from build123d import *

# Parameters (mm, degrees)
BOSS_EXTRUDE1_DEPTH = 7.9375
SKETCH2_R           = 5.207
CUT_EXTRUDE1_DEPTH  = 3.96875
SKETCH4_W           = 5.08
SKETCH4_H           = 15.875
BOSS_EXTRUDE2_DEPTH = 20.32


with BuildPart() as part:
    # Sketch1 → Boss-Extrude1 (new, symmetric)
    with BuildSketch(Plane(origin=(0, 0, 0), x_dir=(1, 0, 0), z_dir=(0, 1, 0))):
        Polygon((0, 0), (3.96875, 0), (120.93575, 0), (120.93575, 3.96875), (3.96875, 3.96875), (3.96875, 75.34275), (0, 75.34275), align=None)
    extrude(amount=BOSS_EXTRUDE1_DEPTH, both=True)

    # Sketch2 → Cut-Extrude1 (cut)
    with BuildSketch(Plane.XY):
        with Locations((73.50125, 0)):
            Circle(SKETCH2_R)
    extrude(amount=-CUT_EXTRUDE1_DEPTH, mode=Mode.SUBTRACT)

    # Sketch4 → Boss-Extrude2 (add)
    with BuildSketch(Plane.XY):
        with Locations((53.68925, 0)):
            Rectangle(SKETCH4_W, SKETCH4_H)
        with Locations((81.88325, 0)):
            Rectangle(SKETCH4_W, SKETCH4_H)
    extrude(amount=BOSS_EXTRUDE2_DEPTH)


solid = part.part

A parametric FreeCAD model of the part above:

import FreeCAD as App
import Part
import Sketcher

V = App.Vector
Q = App.Units.Quantity


def add_polygon(sketch, points):
    """Adds a closed chain of lines whose ends are joined by coincident constraints."""
    first, n = sketch.GeometryCount, len(points)
    for a, b in zip(points, points[1:] + points[:1]):
        sketch.addGeometry(Part.LineSegment(App.Vector(*a, 0), App.Vector(*b, 0)), False)
    for i in range(n):
        sketch.addConstraint(Sketcher.Constraint("Coincident", first + i, 2, first + (i + 1) % n, 1))

doc = App.newDocument("Part")
body = doc.addObject("PartDesign::Body", "Body")

# Sketch on XZ plane
sketch1 = body.newObject("Sketcher::SketchObject", "Sketch")
sketch1.AttachmentSupport = (doc.getObject("XZ_Plane"), [""])
sketch1.MapMode = "FlatFace"
add_polygon(sketch1, [(0, 0), (120.9, 0), (120.9, -4), (4, -4), (4, -75.3), (0, -75.3)])  # lines 0-5
sketch1.addConstraint(Sketcher.Constraint("Horizontal", 0))
sketch1.addConstraint(Sketcher.Constraint("Vertical", 1))
sketch1.addConstraint(Sketcher.Constraint("Horizontal", 2))
sketch1.addConstraint(Sketcher.Constraint("Vertical", 3))
sketch1.addConstraint(Sketcher.Constraint("Horizontal", 4))
sketch1.addConstraint(Sketcher.Constraint("Vertical", 5))
sketch1.addConstraint(Sketcher.Constraint("Coincident", 5, 2, -1, 1))
sketch1.addConstraint(Sketcher.Constraint("Equal", 4, 1))
sketch1.addConstraint(Sketcher.Constraint("DistanceY", 3, 2, 3, 1, Q("2.81 in")))
sketch1.addConstraint(Sketcher.Constraint("DistanceX", 2, 2, 2, 1, Q("4.605 in")))
sketch1.addConstraint(Sketcher.Constraint("DistanceX", 4, 2, 4, 1, Q("0.15625 in")))
pad1 = body.newObject("PartDesign::Pad", "Pad")
pad1.Profile = sketch1
pad1.Length = Q("0.625 in")
pad1.Midplane = True

# Sketch on XY plane
sketch2 = body.newObject("Sketcher::SketchObject", "Sketch001")
sketch2.AttachmentSupport = (doc.getObject("XY_Plane"), [""])
sketch2.MapMode = "FlatFace"
sketch2.addGeometry(Part.Circle(V(74, 0, 0), V(0, 0, 1), 5), False)
sketch2.addConstraint(Sketcher.Constraint("PointOnObject", 0, 3, -1))
sketch2.addConstraint(Sketcher.Constraint("Diameter", 0, Q("0.41 in")))
sketch2.addConstraint(Sketcher.Constraint("DistanceX", -1, 1, 0, 3, 73.50125))
pocket1 = body.newObject("PartDesign::Pocket", "Pocket")
pocket1.Profile = sketch2
pocket1.Length = Q("0.15625 in")

# Sketch on XY plane
sketch3 = body.newObject("Sketcher::SketchObject", "Sketch002")
sketch3.AttachmentSupport = (doc.getObject("XY_Plane"), [""])
sketch3.MapMode = "FlatFace"
add_polygon(sketch3, [(51, 8), (51, -8), (56, -8), (56, 8)])  # lines 0-3
add_polygon(sketch3, [(79, 8), (79, -8), (84, -8), (84, 8)])  # lines 4-7
sketch3.addConstraint(Sketcher.Constraint("Vertical", 0))
sketch3.addConstraint(Sketcher.Constraint("Horizontal", 1))
sketch3.addConstraint(Sketcher.Constraint("Vertical", 2))
sketch3.addConstraint(Sketcher.Constraint("Horizontal", 3))
sketch3.addConstraint(Sketcher.Constraint("Vertical", 4))
sketch3.addConstraint(Sketcher.Constraint("Horizontal", 5))
sketch3.addConstraint(Sketcher.Constraint("Vertical", 6))
sketch3.addConstraint(Sketcher.Constraint("Horizontal", 7))
sketch3.addConstraint(Sketcher.Constraint("Horizontal", 1, 2, 4, 2))
sketch3.addConstraint(Sketcher.Constraint("Horizontal", 3, 2, 6, 2))
sketch3.addConstraint(Sketcher.Constraint("Equal", 3, 5))
sketch3.addConstraint(Sketcher.Constraint("DistanceX", 1, 1, 1, 2, Q("0.2 in")))
sketch3.addConstraint(Sketcher.Constraint("DistanceY", 0, 2, 0, 1, Q("0.625 in")))
sketch3.addConstraint(Sketcher.Constraint("DistanceX", 1, 2, 4, 2, Q("0.91 in")))
sketch3.addConstraint(Sketcher.Constraint("DistanceY", 0, 2, -1, 1, Q("0.3125 in")))
sketch3.addConstraint(Sketcher.Constraint("DistanceX", -1, 1, 0, 2, 51.14925))
pad2 = body.newObject("PartDesign::Pad", "Pad001")
pad2.Profile = sketch3
pad2.Length = Q("0.8 in")

doc.recompute()
